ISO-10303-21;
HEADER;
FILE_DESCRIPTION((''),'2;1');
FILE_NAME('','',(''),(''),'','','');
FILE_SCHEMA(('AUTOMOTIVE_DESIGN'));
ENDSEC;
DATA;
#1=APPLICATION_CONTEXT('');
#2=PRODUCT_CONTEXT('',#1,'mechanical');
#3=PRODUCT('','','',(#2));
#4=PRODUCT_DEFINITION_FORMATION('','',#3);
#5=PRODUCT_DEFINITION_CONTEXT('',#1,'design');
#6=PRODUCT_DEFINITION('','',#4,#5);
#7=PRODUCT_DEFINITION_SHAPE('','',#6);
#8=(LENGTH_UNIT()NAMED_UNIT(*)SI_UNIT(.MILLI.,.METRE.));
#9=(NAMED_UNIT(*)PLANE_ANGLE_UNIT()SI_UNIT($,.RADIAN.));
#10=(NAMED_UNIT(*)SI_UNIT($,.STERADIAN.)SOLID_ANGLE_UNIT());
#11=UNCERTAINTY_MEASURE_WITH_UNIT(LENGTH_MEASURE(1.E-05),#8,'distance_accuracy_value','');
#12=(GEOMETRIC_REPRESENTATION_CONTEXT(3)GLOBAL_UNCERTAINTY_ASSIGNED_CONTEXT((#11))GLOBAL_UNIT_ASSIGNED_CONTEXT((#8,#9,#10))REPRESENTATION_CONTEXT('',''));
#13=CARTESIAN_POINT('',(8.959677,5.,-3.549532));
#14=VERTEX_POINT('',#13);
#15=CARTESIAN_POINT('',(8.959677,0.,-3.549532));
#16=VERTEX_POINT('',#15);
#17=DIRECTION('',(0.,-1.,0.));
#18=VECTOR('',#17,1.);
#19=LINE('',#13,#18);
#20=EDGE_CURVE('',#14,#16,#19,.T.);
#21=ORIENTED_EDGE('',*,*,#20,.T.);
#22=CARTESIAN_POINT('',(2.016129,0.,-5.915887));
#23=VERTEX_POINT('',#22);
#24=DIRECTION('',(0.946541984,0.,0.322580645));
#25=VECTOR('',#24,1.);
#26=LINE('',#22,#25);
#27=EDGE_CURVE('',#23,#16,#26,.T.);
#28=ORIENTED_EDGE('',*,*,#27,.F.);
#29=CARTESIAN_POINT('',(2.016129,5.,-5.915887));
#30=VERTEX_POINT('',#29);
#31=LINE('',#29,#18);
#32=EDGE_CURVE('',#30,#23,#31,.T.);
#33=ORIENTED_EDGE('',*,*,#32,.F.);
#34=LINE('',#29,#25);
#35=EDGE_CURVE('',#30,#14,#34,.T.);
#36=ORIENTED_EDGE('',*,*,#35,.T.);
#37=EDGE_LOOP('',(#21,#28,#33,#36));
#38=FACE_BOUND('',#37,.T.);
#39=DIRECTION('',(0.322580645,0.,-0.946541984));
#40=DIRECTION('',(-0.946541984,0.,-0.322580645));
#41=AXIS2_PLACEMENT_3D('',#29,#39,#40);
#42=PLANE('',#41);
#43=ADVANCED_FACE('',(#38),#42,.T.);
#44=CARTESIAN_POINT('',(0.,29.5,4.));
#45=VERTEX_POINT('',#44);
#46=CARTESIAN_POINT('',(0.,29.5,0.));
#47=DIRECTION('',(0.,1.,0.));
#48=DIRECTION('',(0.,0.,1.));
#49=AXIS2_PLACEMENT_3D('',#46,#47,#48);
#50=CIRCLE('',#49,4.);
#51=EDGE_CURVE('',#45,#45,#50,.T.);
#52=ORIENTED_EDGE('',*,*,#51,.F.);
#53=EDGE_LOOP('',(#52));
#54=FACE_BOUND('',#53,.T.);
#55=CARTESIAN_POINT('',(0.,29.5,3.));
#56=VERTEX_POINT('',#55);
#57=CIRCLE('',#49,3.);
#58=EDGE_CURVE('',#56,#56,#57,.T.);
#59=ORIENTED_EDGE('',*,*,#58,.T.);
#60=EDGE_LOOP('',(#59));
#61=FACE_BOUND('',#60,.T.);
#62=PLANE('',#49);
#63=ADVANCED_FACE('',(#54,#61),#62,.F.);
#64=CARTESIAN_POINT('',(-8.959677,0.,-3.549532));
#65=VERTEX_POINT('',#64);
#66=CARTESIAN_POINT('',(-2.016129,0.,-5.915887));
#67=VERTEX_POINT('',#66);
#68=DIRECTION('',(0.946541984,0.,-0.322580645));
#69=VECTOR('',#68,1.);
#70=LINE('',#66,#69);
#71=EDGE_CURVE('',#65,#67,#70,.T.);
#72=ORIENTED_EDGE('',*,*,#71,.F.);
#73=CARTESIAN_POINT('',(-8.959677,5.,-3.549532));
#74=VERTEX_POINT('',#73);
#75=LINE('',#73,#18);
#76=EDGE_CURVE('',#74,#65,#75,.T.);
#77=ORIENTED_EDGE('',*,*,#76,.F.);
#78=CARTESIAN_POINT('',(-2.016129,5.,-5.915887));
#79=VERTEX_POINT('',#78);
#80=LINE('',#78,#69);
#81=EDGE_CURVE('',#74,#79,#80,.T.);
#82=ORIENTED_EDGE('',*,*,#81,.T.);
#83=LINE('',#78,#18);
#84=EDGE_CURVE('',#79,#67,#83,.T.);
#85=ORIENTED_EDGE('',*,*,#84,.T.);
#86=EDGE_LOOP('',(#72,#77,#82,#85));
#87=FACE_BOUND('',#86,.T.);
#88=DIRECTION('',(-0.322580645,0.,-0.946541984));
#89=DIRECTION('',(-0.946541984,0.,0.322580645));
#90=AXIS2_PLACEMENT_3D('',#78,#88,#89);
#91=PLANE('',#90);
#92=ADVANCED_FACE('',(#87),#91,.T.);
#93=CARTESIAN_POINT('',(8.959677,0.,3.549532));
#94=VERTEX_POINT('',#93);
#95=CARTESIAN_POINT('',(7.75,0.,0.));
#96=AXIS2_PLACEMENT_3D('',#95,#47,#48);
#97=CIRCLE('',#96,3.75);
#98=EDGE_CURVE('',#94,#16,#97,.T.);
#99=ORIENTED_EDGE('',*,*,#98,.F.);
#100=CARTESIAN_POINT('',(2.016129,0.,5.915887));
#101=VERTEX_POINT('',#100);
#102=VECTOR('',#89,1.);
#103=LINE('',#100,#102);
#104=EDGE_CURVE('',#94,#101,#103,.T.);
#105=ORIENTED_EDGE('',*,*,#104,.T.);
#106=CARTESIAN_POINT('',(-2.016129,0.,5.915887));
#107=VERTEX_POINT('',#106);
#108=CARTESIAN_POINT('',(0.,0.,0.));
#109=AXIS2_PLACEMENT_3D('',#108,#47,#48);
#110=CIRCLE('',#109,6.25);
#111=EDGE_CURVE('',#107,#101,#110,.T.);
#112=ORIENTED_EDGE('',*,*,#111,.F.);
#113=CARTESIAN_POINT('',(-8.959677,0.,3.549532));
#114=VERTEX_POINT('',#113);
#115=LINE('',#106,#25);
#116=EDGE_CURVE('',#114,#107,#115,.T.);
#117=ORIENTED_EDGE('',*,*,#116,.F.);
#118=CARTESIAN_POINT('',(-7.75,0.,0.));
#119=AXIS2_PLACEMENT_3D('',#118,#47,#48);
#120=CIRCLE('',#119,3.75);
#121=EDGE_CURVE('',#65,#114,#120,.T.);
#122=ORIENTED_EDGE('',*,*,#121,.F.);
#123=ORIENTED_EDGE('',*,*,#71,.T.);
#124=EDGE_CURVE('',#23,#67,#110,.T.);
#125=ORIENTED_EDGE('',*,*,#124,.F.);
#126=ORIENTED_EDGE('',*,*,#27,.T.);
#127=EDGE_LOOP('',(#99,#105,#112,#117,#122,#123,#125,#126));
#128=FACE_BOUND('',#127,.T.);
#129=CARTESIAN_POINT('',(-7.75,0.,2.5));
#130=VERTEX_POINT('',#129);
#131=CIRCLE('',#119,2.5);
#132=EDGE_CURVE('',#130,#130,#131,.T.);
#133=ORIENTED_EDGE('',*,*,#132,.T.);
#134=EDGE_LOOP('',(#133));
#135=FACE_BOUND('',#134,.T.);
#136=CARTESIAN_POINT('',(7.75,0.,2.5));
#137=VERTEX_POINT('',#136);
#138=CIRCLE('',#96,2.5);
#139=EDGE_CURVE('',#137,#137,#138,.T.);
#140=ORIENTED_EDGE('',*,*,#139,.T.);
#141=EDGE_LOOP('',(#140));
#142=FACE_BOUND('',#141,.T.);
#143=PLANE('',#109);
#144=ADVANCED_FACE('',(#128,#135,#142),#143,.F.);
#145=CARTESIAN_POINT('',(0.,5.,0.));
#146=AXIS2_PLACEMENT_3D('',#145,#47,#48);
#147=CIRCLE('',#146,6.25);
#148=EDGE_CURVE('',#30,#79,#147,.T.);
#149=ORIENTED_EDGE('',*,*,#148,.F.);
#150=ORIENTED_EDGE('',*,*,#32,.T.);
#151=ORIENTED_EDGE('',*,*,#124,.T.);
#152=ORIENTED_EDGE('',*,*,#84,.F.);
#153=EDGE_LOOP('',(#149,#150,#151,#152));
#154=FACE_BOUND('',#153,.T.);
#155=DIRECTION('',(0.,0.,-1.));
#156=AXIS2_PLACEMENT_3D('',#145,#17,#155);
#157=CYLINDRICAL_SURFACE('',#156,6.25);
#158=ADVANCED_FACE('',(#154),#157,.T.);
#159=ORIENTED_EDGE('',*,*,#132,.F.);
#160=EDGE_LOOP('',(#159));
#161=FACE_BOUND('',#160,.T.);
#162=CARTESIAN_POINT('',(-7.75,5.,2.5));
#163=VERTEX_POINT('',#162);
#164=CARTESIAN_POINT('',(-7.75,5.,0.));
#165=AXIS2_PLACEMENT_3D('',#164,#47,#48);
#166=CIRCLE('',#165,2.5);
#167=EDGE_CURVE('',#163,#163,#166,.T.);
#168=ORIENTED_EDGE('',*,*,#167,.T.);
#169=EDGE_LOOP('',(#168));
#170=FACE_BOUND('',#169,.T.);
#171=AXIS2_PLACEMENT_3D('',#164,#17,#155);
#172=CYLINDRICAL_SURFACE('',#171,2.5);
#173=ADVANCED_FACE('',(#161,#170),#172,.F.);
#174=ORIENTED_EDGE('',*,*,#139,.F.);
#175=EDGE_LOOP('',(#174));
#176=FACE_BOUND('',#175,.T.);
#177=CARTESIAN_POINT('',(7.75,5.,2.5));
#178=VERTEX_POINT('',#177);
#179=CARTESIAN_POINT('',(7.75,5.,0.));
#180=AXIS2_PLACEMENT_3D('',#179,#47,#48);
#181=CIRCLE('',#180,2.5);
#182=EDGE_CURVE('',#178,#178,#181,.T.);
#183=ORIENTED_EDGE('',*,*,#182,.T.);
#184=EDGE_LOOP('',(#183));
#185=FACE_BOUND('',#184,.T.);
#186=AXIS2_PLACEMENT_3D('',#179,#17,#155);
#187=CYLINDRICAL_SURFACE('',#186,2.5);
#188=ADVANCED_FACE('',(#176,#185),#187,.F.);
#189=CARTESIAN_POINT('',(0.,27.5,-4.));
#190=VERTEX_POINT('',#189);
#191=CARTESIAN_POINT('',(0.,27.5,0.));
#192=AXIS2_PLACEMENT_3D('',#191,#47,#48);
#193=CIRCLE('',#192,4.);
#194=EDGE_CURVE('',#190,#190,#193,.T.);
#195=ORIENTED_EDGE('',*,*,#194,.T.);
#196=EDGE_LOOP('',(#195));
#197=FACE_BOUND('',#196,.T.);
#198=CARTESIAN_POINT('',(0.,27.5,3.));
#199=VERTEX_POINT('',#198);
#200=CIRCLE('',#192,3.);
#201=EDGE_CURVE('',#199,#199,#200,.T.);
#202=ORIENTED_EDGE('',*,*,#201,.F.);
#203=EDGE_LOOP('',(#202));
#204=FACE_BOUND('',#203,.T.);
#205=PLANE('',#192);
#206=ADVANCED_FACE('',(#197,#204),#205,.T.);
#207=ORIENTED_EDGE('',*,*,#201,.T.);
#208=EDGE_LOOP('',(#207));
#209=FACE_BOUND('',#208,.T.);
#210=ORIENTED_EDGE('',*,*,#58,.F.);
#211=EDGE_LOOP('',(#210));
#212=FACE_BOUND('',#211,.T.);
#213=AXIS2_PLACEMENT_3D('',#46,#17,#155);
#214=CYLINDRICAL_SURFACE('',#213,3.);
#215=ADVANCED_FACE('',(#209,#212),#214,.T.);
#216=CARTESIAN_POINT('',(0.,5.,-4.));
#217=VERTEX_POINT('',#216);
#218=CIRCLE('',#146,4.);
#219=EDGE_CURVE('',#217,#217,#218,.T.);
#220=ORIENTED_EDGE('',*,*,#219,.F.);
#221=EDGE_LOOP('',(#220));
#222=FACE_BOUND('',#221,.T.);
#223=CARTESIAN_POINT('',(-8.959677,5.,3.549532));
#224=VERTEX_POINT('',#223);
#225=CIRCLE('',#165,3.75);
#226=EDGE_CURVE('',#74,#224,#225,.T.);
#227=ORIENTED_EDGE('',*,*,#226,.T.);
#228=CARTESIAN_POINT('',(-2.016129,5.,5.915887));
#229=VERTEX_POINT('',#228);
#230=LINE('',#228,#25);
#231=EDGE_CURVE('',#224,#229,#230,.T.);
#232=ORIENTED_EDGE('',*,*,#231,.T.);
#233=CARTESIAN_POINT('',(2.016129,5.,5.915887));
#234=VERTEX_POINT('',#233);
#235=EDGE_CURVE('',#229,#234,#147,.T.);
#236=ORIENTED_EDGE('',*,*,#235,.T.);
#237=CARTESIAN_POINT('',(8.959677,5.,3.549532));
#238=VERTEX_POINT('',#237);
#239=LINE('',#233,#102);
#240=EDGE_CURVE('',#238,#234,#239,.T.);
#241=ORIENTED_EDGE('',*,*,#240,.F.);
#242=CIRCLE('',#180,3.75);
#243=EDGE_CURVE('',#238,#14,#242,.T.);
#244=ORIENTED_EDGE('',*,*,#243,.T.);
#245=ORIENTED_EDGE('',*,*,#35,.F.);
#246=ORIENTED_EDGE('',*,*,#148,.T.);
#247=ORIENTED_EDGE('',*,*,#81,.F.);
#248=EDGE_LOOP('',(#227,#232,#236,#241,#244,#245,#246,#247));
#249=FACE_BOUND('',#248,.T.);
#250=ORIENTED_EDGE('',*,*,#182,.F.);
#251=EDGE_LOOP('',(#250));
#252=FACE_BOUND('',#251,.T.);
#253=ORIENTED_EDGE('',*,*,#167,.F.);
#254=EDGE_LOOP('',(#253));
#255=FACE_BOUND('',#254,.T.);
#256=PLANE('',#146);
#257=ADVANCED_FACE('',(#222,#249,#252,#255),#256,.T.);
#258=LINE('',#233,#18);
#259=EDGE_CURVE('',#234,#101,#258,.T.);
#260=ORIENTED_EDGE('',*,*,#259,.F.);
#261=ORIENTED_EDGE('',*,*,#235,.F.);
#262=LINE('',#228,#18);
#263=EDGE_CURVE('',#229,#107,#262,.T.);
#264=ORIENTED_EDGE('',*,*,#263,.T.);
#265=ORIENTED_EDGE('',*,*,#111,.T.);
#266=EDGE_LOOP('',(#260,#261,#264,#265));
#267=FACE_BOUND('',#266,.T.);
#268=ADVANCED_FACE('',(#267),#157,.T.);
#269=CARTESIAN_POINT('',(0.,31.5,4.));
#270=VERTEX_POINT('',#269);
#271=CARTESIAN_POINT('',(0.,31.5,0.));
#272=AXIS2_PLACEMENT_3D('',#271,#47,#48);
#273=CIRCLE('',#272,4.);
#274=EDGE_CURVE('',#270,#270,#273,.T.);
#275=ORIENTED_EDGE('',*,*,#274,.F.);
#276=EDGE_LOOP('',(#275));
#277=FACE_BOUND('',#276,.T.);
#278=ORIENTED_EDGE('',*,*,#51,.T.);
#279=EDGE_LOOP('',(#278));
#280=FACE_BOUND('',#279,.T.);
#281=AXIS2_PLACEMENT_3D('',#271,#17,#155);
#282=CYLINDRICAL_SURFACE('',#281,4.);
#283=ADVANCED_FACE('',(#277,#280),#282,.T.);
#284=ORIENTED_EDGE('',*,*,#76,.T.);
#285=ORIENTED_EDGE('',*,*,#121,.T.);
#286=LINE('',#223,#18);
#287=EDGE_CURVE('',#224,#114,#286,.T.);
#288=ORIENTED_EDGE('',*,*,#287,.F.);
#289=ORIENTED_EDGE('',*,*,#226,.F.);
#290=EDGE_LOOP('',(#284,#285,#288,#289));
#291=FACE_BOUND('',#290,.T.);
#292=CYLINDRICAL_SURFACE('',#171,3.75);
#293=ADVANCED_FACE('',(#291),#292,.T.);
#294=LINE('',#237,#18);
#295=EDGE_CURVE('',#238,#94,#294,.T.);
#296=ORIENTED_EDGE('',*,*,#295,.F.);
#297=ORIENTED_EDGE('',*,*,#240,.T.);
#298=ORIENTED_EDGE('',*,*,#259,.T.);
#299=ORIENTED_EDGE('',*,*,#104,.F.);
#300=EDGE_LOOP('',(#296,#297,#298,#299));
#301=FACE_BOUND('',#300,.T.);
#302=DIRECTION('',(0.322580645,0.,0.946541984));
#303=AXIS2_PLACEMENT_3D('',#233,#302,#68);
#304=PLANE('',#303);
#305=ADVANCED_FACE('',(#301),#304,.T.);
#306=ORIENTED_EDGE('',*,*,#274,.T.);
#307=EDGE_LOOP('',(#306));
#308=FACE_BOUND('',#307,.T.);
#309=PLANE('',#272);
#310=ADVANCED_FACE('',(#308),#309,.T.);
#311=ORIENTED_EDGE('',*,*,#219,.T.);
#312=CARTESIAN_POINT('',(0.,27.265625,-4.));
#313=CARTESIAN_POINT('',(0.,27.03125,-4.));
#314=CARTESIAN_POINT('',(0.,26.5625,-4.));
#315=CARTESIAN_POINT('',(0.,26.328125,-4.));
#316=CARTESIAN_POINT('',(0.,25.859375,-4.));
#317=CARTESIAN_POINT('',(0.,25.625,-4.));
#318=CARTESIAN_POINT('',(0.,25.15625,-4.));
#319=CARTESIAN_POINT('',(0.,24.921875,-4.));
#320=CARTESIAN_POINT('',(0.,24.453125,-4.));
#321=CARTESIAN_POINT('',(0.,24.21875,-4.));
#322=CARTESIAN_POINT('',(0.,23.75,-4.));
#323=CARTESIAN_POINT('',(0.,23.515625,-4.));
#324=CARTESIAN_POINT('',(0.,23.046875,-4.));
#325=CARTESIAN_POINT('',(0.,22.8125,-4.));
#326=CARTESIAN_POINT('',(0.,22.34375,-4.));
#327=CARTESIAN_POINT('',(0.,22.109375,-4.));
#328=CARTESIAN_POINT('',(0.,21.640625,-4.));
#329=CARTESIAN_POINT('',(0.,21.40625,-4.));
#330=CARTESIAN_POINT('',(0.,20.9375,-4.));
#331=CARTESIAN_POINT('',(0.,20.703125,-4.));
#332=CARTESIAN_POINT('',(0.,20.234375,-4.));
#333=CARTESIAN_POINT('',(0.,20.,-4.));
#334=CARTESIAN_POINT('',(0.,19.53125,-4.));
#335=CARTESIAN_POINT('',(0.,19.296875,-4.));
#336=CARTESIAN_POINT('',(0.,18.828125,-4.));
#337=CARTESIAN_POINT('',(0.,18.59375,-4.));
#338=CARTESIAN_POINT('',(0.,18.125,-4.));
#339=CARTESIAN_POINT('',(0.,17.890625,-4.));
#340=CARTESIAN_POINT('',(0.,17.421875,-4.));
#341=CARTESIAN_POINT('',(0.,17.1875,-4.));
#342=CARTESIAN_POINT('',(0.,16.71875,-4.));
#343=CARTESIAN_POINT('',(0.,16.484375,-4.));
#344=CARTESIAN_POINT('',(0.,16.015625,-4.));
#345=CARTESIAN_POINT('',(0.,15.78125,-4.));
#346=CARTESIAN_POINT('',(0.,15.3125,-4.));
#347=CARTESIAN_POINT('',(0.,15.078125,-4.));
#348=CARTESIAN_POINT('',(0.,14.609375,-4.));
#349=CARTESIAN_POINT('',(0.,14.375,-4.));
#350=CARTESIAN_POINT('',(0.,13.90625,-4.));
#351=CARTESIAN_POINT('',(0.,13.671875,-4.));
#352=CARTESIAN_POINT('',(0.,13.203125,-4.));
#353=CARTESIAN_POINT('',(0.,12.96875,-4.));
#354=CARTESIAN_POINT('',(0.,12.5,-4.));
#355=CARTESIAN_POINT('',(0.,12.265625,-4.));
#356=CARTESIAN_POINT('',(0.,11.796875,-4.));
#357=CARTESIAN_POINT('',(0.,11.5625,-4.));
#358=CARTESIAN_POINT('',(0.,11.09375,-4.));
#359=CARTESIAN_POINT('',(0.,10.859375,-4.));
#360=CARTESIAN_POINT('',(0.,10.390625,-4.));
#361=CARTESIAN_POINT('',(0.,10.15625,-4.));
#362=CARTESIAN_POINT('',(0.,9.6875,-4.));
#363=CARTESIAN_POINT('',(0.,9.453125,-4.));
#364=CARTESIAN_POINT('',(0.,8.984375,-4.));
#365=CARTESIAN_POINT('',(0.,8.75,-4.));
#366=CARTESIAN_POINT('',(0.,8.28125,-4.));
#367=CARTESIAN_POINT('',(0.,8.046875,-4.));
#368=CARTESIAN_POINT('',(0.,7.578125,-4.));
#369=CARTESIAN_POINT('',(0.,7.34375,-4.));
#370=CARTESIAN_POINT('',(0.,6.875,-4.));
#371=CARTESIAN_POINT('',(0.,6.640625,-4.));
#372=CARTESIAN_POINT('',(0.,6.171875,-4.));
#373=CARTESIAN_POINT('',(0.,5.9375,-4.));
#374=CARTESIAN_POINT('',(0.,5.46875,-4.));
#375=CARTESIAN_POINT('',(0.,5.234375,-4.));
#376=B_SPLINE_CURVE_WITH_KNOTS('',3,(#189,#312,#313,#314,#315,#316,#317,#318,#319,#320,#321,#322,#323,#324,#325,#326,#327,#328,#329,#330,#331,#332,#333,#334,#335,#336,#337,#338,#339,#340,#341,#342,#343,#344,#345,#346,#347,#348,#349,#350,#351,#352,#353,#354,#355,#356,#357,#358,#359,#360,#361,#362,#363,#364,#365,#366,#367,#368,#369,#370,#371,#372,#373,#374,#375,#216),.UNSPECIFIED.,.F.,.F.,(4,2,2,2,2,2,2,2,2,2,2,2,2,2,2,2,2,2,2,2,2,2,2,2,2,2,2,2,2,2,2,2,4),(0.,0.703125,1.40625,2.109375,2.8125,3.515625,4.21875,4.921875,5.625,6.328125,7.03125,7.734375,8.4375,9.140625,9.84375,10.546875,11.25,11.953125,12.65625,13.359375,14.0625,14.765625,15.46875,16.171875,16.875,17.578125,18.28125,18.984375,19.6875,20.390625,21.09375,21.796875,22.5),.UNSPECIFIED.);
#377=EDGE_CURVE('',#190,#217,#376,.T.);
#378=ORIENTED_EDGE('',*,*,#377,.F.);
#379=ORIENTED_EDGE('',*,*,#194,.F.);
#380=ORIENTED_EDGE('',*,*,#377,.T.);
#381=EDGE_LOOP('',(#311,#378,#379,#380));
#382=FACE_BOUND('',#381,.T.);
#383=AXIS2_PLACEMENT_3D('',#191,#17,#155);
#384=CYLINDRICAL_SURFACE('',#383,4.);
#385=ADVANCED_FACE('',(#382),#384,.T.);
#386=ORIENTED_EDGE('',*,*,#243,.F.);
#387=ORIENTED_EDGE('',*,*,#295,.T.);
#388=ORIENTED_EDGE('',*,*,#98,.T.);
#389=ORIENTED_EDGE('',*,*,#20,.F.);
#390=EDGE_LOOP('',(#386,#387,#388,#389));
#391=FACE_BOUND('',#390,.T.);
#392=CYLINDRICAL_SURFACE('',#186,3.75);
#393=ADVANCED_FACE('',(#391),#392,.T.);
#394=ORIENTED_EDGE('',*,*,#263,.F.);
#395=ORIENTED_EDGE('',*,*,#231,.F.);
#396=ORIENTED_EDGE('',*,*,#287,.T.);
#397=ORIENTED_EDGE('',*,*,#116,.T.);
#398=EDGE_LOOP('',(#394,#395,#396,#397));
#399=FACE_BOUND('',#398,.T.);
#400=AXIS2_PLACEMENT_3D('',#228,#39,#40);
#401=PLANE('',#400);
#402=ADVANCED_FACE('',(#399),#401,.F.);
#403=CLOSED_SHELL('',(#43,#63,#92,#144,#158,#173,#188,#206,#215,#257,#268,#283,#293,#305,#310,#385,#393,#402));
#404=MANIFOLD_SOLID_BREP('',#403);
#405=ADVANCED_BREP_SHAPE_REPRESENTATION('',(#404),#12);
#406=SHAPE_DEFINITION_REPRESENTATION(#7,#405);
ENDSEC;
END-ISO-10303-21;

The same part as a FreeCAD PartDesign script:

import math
import FreeCAD as App
import Part
import Sketcher

doc = App.newDocument("Part")
params = doc.addObject("Spreadsheet::Sheet", "Params")
for row, (alias, value) in enumerate([
    ("sketch1_diameter", "5 mm"),
    ("sketch1_radius", "6.25 mm"),
    ("sketch1_radius2", "3.75 mm"),
    ("pad1_length", "5 mm"),
    ("sketch2_diameter", "8 mm"),
    ("pad2_length", "22.5 mm"),
    ("sketch3_diameter", "6 mm"),
    ("pad3_length", "2 mm"),
    ("sketch4_diameter", "8 mm"),
    ("pad4_length", "2 mm"),
], start=1):
    params.set(f"A{row}", alias)
    params.set(f"B{row}", "=" + value)
    params.setAlias(f"B{row}", alias)

body = doc.addObject("PartDesign::Body", "Body")

sketch1 = body.newObject("Sketcher::SketchObject", "Sketch")
sketch1.AttachmentSupport = (doc.getObject("XZ_Plane"), [""])
sketch1.MapMode = "FlatFace"
sketch1.addGeometry([
    Part.ArcOfCircle(Part.Circle(App.Vector(0, 0, 0), App.Vector(0, 0, 1), 6.3), math.radians(71), math.radians(109)),
    Part.LineSegment(App.Vector(2, 5.9, 0), App.Vector(9, 3.5, 0)),
    Part.ArcOfCircle(Part.Circle(App.Vector(7.8, 0, 0), App.Vector(0, 0, 1), 3.8), math.radians(-71), math.radians(71)),
    Part.LineSegment(App.Vector(9, -3.5, 0), App.Vector(2, -5.9, 0)),
    Part.ArcOfCircle(Part.Circle(App.Vector(0, 0, 0), App.Vector(0, 0, 1), 6.3), math.radians(-109), math.radians(-71)),
    Part.LineSegment(App.Vector(-2, -5.9, 0), App.Vector(-9, -3.5, 0)),
    Part.ArcOfCircle(Part.Circle(App.Vector(-7.8, 0, 0), App.Vector(0, 0, 1), 3.8), math.radians(109), math.radians(251)),
    Part.LineSegment(App.Vector(-9, 3.5, 0), App.Vector(-2, 5.9, 0)),
    Part.Circle(App.Vector(-7.8, 0, 0), App.Vector(0, 0, 1), 2.5),
    Part.Circle(App.Vector(7.8, 0, 0), App.Vector(0, 0, 1), 2.5),
], False)
sketch1.addConstraint([
    Sketcher.Constraint("Tangent", 0, 1, 1, 1),
    Sketcher.Constraint("Tangent", 1, 2, 2, 2),
    Sketcher.Constraint("Tangent", 2, 1, 3, 1),
    Sketcher.Constraint("Tangent", 3, 2, 4, 2),
    Sketcher.Constraint("Tangent", 4, 1, 5, 1),
    Sketcher.Constraint("Tangent", 5, 2, 6, 2),
    Sketcher.Constraint("Tangent", 6, 1, 7, 1),
    Sketcher.Constraint("Tangent", 7, 2, 0, 2),
    Sketcher.Constraint("Coincident", 0, 3, -1, 1),
    Sketcher.Constraint("Coincident", 4, 3, -1, 1),
    Sketcher.Constraint("Coincident", 8, 3, 6, 3),
    Sketcher.Constraint("Coincident", 9, 3, 2, 3),
    Sketcher.Constraint("Equal", 0, 4),
    Sketcher.Constraint("Equal", 2, 6),
    Sketcher.Constraint("Equal", 8, 9),
    Sketcher.Constraint("Symmetric", 2, 3, 6, 3, -1, 1),
    Sketcher.Constraint("PointOnObject", 2, 3, -1),
    Sketcher.Constraint("Diameter", 8, 5.0),
    Sketcher.Constraint("Radius", 0, 6.25),
    Sketcher.Constraint("Radius", 2, 3.75),
    Sketcher.Constraint("DistanceX", 6, 3, 2, 3, 15.5),
])
sketch1.setExpression("Constraints[17]", "Params.sketch1_diameter")
sketch1.setExpression("Constraints[18]", "Params.sketch1_radius")
sketch1.setExpression("Constraints[19]", "Params.sketch1_radius2")
pad1 = body.newObject("PartDesign::Pad", "Pad")
pad1.Profile = sketch1
pad1.setExpression("Length", "Params.pad1_length")
pad1.Reversed = True

sketch2 = body.newObject("Sketcher::SketchObject", "Sketch001")
sketch2.AttachmentSupport = (doc.getObject("XZ_Plane"), [""])
sketch2.MapMode = "FlatFace"
sketch2.AttachmentOffset = App.Placement(App.Vector(0, 0, -5), App.Rotation())
sketch2.addGeometry(Part.Circle(App.Vector(0, 0, 0), App.Vector(0, 0, 1), 4), False)
sketch2.addConstraint([
    Sketcher.Constraint("Coincident", 0, 3, -1, 1),
    Sketcher.Constraint("Diameter", 0, 8.0),
])
sketch2.setExpression("Constraints[1]", "Params.sketch2_diameter")
pad2 = body.newObject("PartDesign::Pad", "Pad001")
pad2.Profile = sketch2
pad2.setExpression("Length", "Params.pad2_length")
pad2.Reversed = True

sketch3 = body.newObject("Sketcher::SketchObject", "Sketch002")
sketch3.AttachmentSupport = (doc.getObject("XZ_Plane"), [""])
sketch3.MapMode = "FlatFace"
sketch3.AttachmentOffset = App.Placement(App.Vector(0, 0, -27.5), App.Rotation())
sketch3.addGeometry(Part.Circle(App.Vector(0, 0, 0), App.Vector(0, 0, 1), 3), False)
sketch3.addConstraint([
    Sketcher.Constraint("Coincident", 0, 3, -1, 1),
    Sketcher.Constraint("Diameter", 0, 6.0),
])
sketch3.setExpression("Constraints[1]", "Params.sketch3_diameter")
pad3 = body.newObject("PartDesign::Pad", "Pad002")
pad3.Profile = sketch3
pad3.setExpression("Length", "Params.pad3_length")
pad3.Reversed = True

sketch4 = body.newObject("Sketcher::SketchObject", "Sketch003")
sketch4.AttachmentSupport = (doc.getObject("XZ_Plane"), [""])
sketch4.MapMode = "FlatFace"
sketch4.AttachmentOffset = App.Placement(App.Vector(0, 0, -29.5), App.Rotation())
sketch4.addGeometry(Part.Circle(App.Vector(0, 0, 0), App.Vector(0, 0, 1), 4), False)
sketch4.addConstraint([
    Sketcher.Constraint("Coincident", 0, 3, -1, 1),
    Sketcher.Constraint("Diameter", 0, 8.0),
])
sketch4.setExpression("Constraints[1]", "Params.sketch4_diameter")
pad4 = body.newObject("PartDesign::Pad", "Pad003")
pad4.Profile = sketch4
pad4.setExpression("Length", "Params.pad4_length")
pad4.Reversed = True

doc.recompute()
